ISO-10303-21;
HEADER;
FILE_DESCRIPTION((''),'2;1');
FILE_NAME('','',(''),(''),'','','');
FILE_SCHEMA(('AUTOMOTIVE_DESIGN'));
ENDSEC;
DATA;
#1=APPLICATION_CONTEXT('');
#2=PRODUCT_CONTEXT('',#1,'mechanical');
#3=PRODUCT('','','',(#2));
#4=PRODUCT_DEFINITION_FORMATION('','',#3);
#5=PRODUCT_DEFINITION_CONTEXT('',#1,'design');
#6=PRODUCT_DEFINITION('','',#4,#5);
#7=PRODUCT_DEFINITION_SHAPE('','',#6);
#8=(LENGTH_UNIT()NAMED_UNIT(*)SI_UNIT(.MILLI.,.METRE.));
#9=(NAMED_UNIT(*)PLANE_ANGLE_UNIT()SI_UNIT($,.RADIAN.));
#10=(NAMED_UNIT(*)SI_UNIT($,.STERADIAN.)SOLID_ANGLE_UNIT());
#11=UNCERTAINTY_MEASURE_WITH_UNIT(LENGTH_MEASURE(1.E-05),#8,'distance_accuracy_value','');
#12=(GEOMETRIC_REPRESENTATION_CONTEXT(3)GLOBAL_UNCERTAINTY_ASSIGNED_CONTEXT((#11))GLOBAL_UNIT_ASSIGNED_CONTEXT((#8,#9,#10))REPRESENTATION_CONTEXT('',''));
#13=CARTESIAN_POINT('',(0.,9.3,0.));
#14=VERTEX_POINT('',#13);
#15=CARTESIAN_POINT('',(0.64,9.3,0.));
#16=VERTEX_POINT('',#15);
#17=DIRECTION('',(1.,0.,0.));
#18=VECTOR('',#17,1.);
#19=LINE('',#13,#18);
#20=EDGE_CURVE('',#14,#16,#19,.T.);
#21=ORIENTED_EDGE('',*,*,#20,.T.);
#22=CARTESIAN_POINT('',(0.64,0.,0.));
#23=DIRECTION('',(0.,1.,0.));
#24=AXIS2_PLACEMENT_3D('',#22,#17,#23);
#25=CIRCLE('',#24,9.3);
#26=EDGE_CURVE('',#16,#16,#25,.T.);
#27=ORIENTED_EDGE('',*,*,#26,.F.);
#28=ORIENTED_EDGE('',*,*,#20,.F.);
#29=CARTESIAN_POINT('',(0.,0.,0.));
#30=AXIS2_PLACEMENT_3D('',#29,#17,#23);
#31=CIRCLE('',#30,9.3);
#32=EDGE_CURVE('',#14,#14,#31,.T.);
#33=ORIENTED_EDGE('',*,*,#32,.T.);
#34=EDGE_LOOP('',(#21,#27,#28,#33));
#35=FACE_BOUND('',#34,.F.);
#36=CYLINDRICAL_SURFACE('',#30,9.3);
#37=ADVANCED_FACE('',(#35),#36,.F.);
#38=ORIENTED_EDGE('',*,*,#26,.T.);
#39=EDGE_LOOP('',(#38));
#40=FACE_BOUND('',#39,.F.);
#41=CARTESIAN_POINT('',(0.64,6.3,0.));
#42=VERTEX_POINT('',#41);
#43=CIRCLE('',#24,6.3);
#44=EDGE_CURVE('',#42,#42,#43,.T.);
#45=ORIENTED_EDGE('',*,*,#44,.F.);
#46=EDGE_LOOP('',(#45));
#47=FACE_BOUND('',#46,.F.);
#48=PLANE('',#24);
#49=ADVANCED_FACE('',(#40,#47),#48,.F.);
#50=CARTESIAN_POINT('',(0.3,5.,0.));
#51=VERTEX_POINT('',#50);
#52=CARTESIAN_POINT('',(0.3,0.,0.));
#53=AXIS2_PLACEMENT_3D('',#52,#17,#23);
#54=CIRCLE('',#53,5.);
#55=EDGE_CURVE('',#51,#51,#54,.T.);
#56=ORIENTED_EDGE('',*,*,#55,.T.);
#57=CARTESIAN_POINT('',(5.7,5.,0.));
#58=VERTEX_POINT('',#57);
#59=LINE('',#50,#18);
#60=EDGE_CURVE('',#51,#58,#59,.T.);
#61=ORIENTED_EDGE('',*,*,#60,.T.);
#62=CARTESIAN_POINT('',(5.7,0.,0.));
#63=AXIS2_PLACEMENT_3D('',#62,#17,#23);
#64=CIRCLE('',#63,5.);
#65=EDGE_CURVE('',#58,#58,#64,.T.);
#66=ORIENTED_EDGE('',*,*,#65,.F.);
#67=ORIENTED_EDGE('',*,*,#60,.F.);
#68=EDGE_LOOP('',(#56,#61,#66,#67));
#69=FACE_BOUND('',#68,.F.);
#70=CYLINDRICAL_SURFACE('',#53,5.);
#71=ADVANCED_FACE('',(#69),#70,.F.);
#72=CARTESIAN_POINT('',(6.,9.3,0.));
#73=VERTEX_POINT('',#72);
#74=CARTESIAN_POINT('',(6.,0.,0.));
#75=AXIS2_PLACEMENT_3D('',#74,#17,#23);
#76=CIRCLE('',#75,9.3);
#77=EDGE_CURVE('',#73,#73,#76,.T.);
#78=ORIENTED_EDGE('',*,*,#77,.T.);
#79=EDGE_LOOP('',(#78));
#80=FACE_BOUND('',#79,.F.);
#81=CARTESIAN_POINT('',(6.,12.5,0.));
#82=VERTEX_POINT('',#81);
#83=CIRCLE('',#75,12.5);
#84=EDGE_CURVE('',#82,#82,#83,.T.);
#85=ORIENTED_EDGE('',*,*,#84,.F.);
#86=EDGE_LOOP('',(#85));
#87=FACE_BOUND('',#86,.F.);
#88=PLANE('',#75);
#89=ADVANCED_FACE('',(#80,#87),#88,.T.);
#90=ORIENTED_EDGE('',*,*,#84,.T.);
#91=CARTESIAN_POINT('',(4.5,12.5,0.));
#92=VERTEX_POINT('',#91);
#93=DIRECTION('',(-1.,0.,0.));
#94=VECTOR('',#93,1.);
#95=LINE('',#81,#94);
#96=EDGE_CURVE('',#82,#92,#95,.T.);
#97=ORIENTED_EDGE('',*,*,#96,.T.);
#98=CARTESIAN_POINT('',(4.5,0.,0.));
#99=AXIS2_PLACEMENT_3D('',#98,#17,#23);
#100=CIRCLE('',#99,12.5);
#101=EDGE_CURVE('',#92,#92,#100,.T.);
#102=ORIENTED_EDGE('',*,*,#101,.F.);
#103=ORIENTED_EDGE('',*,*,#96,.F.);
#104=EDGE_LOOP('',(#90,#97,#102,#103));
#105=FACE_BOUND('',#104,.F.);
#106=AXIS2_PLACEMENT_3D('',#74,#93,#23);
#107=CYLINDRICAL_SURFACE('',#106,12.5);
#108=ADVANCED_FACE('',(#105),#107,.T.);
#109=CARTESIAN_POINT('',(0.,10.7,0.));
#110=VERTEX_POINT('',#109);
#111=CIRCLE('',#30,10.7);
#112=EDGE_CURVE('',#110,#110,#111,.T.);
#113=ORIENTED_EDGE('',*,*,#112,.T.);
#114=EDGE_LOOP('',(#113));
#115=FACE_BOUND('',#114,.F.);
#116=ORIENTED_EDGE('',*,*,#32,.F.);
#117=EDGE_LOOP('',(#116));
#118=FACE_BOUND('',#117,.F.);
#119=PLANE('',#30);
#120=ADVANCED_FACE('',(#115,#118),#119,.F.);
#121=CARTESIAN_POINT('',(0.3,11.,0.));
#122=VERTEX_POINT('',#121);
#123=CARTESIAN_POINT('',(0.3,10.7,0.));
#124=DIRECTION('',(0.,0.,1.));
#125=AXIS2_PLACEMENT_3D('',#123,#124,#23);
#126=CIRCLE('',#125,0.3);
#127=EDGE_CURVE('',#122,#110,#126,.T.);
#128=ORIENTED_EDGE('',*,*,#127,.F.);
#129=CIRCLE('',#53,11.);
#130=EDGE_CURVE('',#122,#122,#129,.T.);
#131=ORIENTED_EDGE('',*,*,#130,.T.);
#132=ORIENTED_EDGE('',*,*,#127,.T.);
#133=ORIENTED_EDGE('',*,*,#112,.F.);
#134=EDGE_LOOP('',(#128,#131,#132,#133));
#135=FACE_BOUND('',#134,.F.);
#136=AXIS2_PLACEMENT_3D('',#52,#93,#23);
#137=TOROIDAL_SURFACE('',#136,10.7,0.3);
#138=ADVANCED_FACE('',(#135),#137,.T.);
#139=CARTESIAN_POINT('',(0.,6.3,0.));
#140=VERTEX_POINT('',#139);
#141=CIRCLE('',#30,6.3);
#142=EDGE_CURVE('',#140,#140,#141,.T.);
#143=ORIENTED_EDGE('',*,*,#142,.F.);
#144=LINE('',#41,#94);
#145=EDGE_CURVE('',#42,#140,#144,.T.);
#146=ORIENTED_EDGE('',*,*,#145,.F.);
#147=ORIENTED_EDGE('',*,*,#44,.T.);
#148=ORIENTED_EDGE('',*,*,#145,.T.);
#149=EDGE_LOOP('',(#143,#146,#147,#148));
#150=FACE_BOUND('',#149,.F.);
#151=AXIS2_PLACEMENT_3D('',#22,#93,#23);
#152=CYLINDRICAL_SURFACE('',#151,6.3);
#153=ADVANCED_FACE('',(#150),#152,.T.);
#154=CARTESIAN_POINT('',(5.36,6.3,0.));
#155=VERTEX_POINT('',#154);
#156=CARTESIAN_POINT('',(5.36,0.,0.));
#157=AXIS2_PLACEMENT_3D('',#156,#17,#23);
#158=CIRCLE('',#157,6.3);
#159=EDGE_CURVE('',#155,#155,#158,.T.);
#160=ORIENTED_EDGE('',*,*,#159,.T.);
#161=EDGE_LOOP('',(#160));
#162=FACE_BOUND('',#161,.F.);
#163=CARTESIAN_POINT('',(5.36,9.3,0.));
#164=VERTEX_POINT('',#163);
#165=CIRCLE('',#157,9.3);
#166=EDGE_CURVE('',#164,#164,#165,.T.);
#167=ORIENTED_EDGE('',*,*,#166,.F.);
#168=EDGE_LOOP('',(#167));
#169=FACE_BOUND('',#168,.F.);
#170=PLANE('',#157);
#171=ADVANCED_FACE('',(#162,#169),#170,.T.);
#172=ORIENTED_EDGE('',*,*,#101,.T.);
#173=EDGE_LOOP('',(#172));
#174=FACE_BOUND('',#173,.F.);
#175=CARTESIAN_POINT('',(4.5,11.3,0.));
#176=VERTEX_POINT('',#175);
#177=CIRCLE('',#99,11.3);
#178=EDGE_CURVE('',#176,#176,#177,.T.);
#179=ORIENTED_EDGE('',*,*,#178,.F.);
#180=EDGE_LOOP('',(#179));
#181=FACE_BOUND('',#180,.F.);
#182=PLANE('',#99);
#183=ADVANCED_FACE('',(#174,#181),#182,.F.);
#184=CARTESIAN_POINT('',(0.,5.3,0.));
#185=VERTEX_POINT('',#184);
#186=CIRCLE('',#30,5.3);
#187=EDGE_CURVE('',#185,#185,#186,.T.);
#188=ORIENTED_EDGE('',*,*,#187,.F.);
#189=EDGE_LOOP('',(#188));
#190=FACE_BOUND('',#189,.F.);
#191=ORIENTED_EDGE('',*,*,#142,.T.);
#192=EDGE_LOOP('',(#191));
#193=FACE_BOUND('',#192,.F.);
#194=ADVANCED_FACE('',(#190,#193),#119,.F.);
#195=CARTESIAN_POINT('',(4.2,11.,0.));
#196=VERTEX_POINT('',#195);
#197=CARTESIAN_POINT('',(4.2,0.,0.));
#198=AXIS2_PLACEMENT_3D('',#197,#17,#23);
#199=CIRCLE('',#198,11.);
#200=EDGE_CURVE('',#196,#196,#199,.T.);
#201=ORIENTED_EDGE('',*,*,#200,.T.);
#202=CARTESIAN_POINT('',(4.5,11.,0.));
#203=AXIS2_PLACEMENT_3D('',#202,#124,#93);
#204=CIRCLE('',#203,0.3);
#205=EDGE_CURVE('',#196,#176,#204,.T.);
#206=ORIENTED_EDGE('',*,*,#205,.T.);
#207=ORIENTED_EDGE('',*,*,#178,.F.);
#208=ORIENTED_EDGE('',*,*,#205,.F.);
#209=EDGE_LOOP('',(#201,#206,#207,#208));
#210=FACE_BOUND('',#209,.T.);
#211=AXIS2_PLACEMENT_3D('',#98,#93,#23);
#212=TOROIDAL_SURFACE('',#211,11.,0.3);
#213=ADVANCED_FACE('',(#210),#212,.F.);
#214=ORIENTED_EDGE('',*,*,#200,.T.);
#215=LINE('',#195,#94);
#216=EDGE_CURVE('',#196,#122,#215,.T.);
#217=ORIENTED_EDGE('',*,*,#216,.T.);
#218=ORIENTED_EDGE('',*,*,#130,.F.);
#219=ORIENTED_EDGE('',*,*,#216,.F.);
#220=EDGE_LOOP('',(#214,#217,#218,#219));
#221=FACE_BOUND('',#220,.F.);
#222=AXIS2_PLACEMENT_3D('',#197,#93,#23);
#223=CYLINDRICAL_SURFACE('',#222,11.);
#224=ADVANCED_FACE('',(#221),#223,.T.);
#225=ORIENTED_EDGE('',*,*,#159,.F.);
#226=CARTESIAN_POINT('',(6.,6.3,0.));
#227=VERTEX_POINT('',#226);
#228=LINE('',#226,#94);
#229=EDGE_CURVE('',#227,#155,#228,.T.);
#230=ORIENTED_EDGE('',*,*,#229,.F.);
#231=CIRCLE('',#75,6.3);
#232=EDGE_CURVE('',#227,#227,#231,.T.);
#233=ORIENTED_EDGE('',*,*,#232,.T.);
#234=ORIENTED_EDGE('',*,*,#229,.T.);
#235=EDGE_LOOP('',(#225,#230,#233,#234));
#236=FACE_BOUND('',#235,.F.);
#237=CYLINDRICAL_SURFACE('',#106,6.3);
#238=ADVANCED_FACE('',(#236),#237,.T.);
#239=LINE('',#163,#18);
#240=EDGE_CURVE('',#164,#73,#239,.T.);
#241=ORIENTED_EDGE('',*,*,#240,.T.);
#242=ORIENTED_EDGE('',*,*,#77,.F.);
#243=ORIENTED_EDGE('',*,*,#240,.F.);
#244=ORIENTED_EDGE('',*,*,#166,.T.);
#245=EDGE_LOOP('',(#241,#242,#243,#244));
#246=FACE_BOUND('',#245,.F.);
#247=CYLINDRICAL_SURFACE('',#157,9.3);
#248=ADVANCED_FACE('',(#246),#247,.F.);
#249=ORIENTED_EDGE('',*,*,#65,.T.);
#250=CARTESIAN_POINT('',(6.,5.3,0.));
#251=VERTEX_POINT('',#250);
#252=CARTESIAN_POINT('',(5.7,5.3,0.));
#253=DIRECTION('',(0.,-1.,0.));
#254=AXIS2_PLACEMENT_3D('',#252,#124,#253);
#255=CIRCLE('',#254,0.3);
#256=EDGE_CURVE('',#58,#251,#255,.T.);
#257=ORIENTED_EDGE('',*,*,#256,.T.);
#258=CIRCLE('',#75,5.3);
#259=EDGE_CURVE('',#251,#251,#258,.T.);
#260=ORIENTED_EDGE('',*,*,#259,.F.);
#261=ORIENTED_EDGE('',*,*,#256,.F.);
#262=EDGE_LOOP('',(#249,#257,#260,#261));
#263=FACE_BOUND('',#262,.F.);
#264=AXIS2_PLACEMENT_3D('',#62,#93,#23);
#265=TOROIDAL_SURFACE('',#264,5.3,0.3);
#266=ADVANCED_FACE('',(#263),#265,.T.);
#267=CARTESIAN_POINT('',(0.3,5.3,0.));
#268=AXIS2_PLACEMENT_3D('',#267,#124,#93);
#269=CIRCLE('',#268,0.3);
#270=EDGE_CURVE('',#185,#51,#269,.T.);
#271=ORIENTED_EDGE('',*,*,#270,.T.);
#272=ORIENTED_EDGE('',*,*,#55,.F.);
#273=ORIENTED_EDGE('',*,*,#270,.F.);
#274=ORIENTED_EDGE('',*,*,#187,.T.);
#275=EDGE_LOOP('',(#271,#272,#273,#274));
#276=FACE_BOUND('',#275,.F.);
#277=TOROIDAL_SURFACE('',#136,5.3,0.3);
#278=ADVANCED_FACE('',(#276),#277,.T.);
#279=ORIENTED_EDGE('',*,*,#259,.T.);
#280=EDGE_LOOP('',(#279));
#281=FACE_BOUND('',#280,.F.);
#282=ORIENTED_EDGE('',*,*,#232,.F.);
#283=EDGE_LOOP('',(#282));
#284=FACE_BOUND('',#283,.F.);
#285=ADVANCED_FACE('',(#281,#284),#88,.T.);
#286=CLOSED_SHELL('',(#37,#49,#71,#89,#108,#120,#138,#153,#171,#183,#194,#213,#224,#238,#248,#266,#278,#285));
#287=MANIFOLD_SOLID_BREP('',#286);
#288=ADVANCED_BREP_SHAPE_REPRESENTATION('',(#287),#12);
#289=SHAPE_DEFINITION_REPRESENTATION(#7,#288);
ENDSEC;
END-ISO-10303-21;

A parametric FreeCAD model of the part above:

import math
import FreeCAD as App
import Part
import Sketcher

doc = App.newDocument("Part")
body = doc.addObject("PartDesign::Body", "Body")

# Sketch on XY plane
sketch1 = body.newObject("Sketcher::SketchObject", "Sketch")
sketch1.AttachmentSupport = (doc.getObject("XY_Plane"), [""])
sketch1.MapMode = "FlatFace"
sketch1.addGeometry(Part.LineSegment(App.Vector(0, 6.3, 0), App.Vector(0, 5.3, 0)), False)
sketch1.addGeometry(Part.ArcOfCircle(Part.Circle(App.Vector(0.3, 5.3, 0), App.Vector(0, 0, 1), 0.3), math.radians(180), math.radians(270)), False)
sketch1.addGeometry(Part.LineSegment(App.Vector(0.3, 5, 0), App.Vector(5.7, 5, 0)), False)
sketch1.addGeometry(Part.ArcOfCircle(Part.Circle(App.Vector(5.7, 5.3, 0), App.Vector(0, 0, 1), 0.3), math.radians(-90), math.radians(0)), False)
sketch1.addGeometry(Part.LineSegment(App.Vector(6, 5.3, 0), App.Vector(6, 6.3, 0)), False)
sketch1.addGeometry(Part.LineSegment(App.Vector(6, 6.3, 0), App.Vector(5.36, 6.3, 0)), False)
sketch1.addGeometry(Part.LineSegment(App.Vector(5.36, 6.3, 0), App.Vector(5.36, 9.3, 0)), False)
sketch1.addGeometry(Part.LineSegment(App.Vector(5.36, 9.3, 0), App.Vector(6, 9.3, 0)), False)
sketch1.addGeometry(Part.LineSegment(App.Vector(6, 9.3, 0), App.Vector(6, 12.5, 0)), False)
sketch1.addGeometry(Part.LineSegment(App.Vector(6, 12.5, 0), App.Vector(4.5, 12.5, 0)), False)
sketch1.addGeometry(Part.LineSegment(App.Vector(4.5, 12.5, 0), App.Vector(4.5, 11.3, 0)), False)
sketch1.addGeometry(Part.ArcOfCircle(Part.Circle(App.Vector(4.5, 11, 0), App.Vector(0, 0, 1), 0.3), math.radians(180), math.radians(450)), False)
sketch1.addGeometry(Part.LineSegment(App.Vector(4.2, 11, 0), App.Vector(0.3, 11, 0)), False)
sketch1.addGeometry(Part.ArcOfCircle(Part.Circle(App.Vector(0.3, 10.7, 0), App.Vector(0, 0, 1), 0.3), math.radians(90), math.radians(180)), False)
sketch1.addGeometry(Part.LineSegment(App.Vector(0, 10.7, 0), App.Vector(0, 9.3, 0)), False)
sketch1.addGeometry(Part.LineSegment(App.Vector(0, 9.3, 0), App.Vector(0.64, 9.3, 0)), False)
sketch1.addGeometry(Part.LineSegment(App.Vector(0.64, 9.3, 0), App.Vector(0.64, 6.3, 0)), False)
sketch1.addGeometry(Part.LineSegment(App.Vector(0.64, 6.3, 0), App.Vector(0, 6.3, 0)), False)
sketch1.addConstraint(Sketcher.Constraint("Tangent", 0, 2, 1, 1))
sketch1.addConstraint(Sketcher.Constraint("Tangent", 1, 2, 2, 1))
sketch1.addConstraint(Sketcher.Constraint("Tangent", 2, 2, 3, 1))
sketch1.addConstraint(Sketcher.Constraint("Tangent", 3, 2, 4, 1))
sketch1.addConstraint(Sketcher.Constraint("Coincident", 4, 2, 5, 1))
sketch1.addConstraint(Sketcher.Constraint("Coincident", 5, 2, 6, 1))
sketch1.addConstraint(Sketcher.Constraint("Coincident", 6, 2, 7, 1))
sketch1.addConstraint(Sketcher.Constraint("Coincident", 7, 2, 8, 1))
sketch1.addConstraint(Sketcher.Constraint("Coincident", 8, 2, 9, 1))
sketch1.addConstraint(Sketcher.Constraint("Coincident", 9, 2, 10, 1))
sketch1.addConstraint(Sketcher.Constraint("Coincident", 10, 2, 11, 2))
sketch1.addConstraint(Sketcher.Constraint("Coincident", 11, 1, 12, 1))
sketch1.addConstraint(Sketcher.Constraint("Tangent", 12, 2, 13, 1))
sketch1.addConstraint(Sketcher.Constraint("Tangent", 13, 2, 14, 1))
sketch1.addConstraint(Sketcher.Constraint("Coincident", 14, 2, 15, 1))
sketch1.addConstraint(Sketcher.Constraint("Coincident", 15, 2, 16, 1))
sketch1.addConstraint(Sketcher.Constraint("Coincident", 16, 2, 17, 1))
sketch1.addConstraint(Sketcher.Constraint("Coincident", 17, 2, 0, 1))
sketch1.addConstraint(Sketcher.Constraint("Vertical", 0))
sketch1.addConstraint(Sketcher.Constraint("Horizontal", 2))
sketch1.addConstraint(Sketcher.Constraint("Vertical", 4))
sketch1.addConstraint(Sketcher.Constraint("Horizontal", 5))
sketch1.addConstraint(Sketcher.Constraint("Vertical", 6))
sketch1.addConstraint(Sketcher.Constraint("Horizontal", 7))
sketch1.addConstraint(Sketcher.Constraint("Vertical", 8))
sketch1.addConstraint(Sketcher.Constraint("Horizontal", 9))
sketch1.addConstraint(Sketcher.Constraint("Vertical", 10))
sketch1.addConstraint(Sketcher.Constraint("Horizontal", 12))
sketch1.addConstraint(Sketcher.Constraint("Vertical", 14))
sketch1.addConstraint(Sketcher.Constraint("Horizontal", 15))
sketch1.addConstraint(Sketcher.Constraint("Vertical", 16))
sketch1.addConstraint(Sketcher.Constraint("Horizontal", 17))
sketch1.addConstraint(Sketcher.Constraint("Equal", 1, 3))
sketch1.addConstraint(Sketcher.Constraint("Equal", 3, 11))
sketch1.addConstraint(Sketcher.Constraint("Equal", 11, 13))
sketch1.addConstraint(Sketcher.Constraint("PointOnObject", 0, 2, -2))
sketch1.addConstraint(Sketcher.Constraint("PointOnObject", 13, 2, -2))
sketch1.addConstraint(Sketcher.Constraint("Horizontal", 7, 2, 14, 2))
sketch1.addConstraint(Sketcher.Constraint("Horizontal", 5, 2, 16, 2))
sketch1.addConstraint(Sketcher.Constraint("Vertical", 4, 2, 7, 2))
sketch1.addConstraint(Sketcher.Constraint("Vertical", 11, 3, 9, 2))
sketch1.addConstraint(Sketcher.Constraint("Equal", 7, 15))
sketch1.addConstraint(Sketcher.Constraint("Radius", 1, 0.3))
sketch1.addConstraint(Sketcher.Constraint("DistanceY", 0, 2, 0, 1, 1.0))
sketch1.addConstraint(Sketcher.Constraint("DistanceY", 6, 1, 6, 2, 3.0))
sketch1.addConstraint(Sketcher.Constraint("DistanceX", 2, 1, 2, 2, 5.4))
sketch1.addConstraint(Sketcher.Constraint("DistanceX", 9, 2, 9, 1, 1.5))
sketch1.addConstraint(Sketcher.Constraint("DistanceY", 8, 1, 8, 2, 3.2))
sketch1.addConstraint(Sketcher.Constraint("DistanceY", 10, 2, 10, 1, 1.2))
sketch1.addConstraint(Sketcher.Constraint("DistanceY", 14, 2, 14, 1, 1.4))
sketch1.addConstraint(Sketcher.Constraint("DistanceY", -1, 1, 11, 3, 11.0))
sketch1.addConstraint(Sketcher.Constraint("DistanceX", 5, 2, 5, 1, 0.64))
revolution = body.newObject("PartDesign::Revolution", "Revolution")
revolution.Profile = sketch1
revolution.ReferenceAxis = (sketch1, ["H_Axis"])
revolution.Angle = 360

doc.recompute()
